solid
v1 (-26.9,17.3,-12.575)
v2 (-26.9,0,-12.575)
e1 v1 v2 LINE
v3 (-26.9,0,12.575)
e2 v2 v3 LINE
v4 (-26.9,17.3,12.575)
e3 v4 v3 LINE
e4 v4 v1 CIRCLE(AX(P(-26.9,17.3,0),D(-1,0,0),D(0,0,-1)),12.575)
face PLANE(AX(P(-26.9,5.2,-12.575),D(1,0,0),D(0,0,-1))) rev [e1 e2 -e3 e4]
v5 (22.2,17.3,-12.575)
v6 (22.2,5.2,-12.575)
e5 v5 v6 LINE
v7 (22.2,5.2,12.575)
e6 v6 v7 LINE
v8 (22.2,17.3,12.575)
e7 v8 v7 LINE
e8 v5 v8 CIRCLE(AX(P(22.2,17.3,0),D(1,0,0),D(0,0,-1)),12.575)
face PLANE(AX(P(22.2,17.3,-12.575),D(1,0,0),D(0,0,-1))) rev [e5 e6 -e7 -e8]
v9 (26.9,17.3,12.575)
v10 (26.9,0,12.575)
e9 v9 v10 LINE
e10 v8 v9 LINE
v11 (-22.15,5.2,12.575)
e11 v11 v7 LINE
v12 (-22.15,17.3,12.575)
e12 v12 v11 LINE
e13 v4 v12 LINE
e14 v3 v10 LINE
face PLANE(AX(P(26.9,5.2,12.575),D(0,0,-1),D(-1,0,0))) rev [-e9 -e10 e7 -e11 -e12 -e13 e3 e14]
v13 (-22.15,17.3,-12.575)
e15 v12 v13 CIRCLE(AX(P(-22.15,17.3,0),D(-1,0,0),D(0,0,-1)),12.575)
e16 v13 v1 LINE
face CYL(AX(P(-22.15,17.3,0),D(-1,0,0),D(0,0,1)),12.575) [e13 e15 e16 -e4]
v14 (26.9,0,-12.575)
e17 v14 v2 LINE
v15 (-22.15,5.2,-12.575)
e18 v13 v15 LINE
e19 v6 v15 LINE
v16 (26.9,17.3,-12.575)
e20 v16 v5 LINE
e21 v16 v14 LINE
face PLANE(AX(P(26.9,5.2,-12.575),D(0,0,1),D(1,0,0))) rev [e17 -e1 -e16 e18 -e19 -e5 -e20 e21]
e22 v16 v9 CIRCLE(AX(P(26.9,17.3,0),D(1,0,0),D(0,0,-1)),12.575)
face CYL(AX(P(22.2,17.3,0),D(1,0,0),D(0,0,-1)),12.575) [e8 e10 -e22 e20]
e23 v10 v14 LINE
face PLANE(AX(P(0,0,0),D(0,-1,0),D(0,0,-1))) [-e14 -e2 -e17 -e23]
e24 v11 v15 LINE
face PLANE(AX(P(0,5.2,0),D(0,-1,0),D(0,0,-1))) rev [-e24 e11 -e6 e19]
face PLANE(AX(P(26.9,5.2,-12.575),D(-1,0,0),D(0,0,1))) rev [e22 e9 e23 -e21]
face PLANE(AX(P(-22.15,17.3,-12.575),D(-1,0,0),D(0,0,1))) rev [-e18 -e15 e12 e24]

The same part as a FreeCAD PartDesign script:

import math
import FreeCAD as App
import Part
import Sketcher

doc = App.newDocument("Part")
body = doc.addObject("PartDesign::Body", "Body")

# Sketch on XZ plane
sketch1 = body.newObject("Sketcher::SketchObject", "Sketch")
sketch1.AttachmentSupport = (doc.getObject("XZ_Plane"), [""])
sketch1.MapMode = "FlatFace"
sketch1.addGeometry([
    Part.LineSegment(App.Vector(-26.9, -12.575, 0), App.Vector(-26.9, 12.575, 0)),
    Part.LineSegment(App.Vector(-26.9, 12.575, 0), App.Vector(26.9, 12.575, 0)),
    Part.LineSegment(App.Vector(26.9, 12.575, 0), App.Vector(26.9, -12.575, 0)),
    Part.LineSegment(App.Vector(26.9, -12.575, 0), App.Vector(-26.9, -12.575, 0)),
], False)
sketch1.addConstraint([
    Sketcher.Constraint("Coincident", 0, 2, 1, 1),
    Sketcher.Constraint("Coincident", 1, 2, 2, 1),
    Sketcher.Constraint("Coincident", 2, 2, 3, 1),
    Sketcher.Constraint("Coincident", 3, 2, 0, 1),
    Sketcher.Constraint("Vertical", 0),
    Sketcher.Constraint("Horizontal", 1),
    Sketcher.Constraint("Vertical", 2),
    Sketcher.Constraint("Horizontal", 3),
    Sketcher.Constraint("Symmetric", 0, 2, 2, 2, -1, 1),
    Sketcher.Constraint("DistanceX", 1, 1, 1, 2, 53.8),
    Sketcher.Constraint("DistanceY", 0, 1, 0, 2, 25.15),
])
pad1 = body.newObject("PartDesign::Pad", "Pad")
pad1.Profile = sketch1
pad1.Length = 5.2
pad1.Reversed = True

# Sketch on XZ plane
sketch2 = body.newObject("Sketcher::SketchObject", "Sketch001")
sketch2.AttachmentSupport = (doc.getObject("XZ_Plane"), [""])
sketch2.MapMode = "FlatFace"
sketch2.AttachmentOffset = App.Placement(App.Vector(0, 0, -5.2), App.Rotation())
sketch2.addGeometry([
    Part.LineSegment(App.Vector(-26.9, -12.575, 0), App.Vector(-26.9, 12.575, 0)),
    Part.LineSegment(App.Vector(-26.9, 12.575, 0), App.Vector(-22.15, 12.575, 0)),
    Part.LineSegment(App.Vector(-22.15, 12.575, 0), App.Vector(-22.15, -12.575, 0)),
    Part.LineSegment(App.Vector(-22.15, -12.575, 0), App.Vector(-26.9, -12.575, 0)),
], False)
sketch2.addConstraint([
    Sketcher.Constraint("Coincident", 0, 2, 1, 1),
    Sketcher.Constraint("Coincident", 1, 2, 2, 1),
    Sketcher.Constraint("Coincident", 2, 2, 3, 1),
    Sketcher.Constraint("Coincident", 3, 2, 0, 1),
    Sketcher.Constraint("Vertical", 0),
    Sketcher.Constraint("Horizontal", 1),
    Sketcher.Constraint("Vertical", 2),
    Sketcher.Constraint("Horizontal", 3),
    Sketcher.Constraint("DistanceX", 1, 1, 1, 2, 4.75),
    Sketcher.Constraint("DistanceY", 0, 1, 0, 2, 25.15),
    Sketcher.Constraint("DistanceX", 0, 2, -1, 1, 26.9),
    Sketcher.Constraint("DistanceY", -1, 1, 0, 2, 12.575),
])
pad2 = body.newObject("PartDesign::Pad", "Pad001")
pad2.Profile = sketch2
pad2.Length = 12.1
pad2.Reversed = True

# Sketch on YZ plane
sketch3 = body.newObject("Sketcher::SketchObject", "Sketch002")
sketch3.AttachmentSupport = (doc.getObject("YZ_Plane"), [""])
sketch3.MapMode = "FlatFace"
sketch3.AttachmentOffset = App.Placement(App.Vector(0, 0, -22.15), App.Rotation())
sketch3.addGeometry([
    Part.LineSegment(App.Vector(17.3, -12.575, 0), App.Vector(17.3, 12.575, 0)),
    Part.ArcOfCircle(Part.Circle(App.Vector(17.3, 0, 0), App.Vector(0, 0, 1), 12.575), math.radians(-90), math.radians(90)),
], False)
sketch3.addConstraint([
    Sketcher.Constraint("Coincident", 0, 1, 1, 1),
    Sketcher.Constraint("Coincident", 1, 2, 0, 2),
    Sketcher.Constraint("Vertical", 0),
    Sketcher.Constraint("PointOnObject", 1, 3, -1),
    Sketcher.Constraint("Vertical", 1, 3, 0, 1),
    Sketcher.Constraint("Radius", 1, 12.575),
    Sketcher.Constraint("DistanceX", -1, 1, 1, 3, 17.3),
])
pad3 = body.newObject("PartDesign::Pad", "Pad002")
pad3.Profile = sketch3
pad3.Length = 4.75
pad3.Reversed = True

# Sketch on XZ plane
sketch4 = body.newObject("Sketcher::SketchObject", "Sketch003")
sketch4.AttachmentSupport = (doc.getObject("XZ_Plane"), [""])
sketch4.MapMode = "FlatFace"
sketch4.AttachmentOffset = App.Placement(App.Vector(0, 0, -5.2), App.Rotation())
sketch4.addGeometry([
    Part.LineSegment(App.Vector(22.2, -12.575, 0), App.Vector(22.2, 12.575, 0)),
    Part.LineSegment(App.Vector(22.2, 12.575, 0), App.Vector(26.9, 12.575, 0)),
    Part.LineSegment(App.Vector(26.9, 12.575, 0), App.Vector(26.9, -12.575, 0)),
    Part.LineSegment(App.Vector(26.9, -12.575, 0), App.Vector(22.2, -12.575, 0)),
], False)
sketch4.addConstraint([
    Sketcher.Constraint("Coincident", 0, 2, 1, 1),
    Sketcher.Constraint("Coincident", 1, 2, 2, 1),
    Sketcher.Constraint("Coincident", 2, 2, 3, 1),
    Sketcher.Constraint("Coincident", 3, 2, 0, 1),
    Sketcher.Constraint("Vertical", 0),
    Sketcher.Constraint("Horizontal", 1),
    Sketcher.Constraint("Vertical", 2),
    Sketcher.Constraint("Horizontal", 3),
    Sketcher.Constraint("DistanceX", 1, 1, 1, 2, 4.7),
    Sketcher.Constraint("DistanceY", 0, 1, 0, 2, 25.15),
    Sketcher.Constraint("DistanceX", -1, 1, 0, 2, 22.2),
    Sketcher.Constraint("DistanceY", -1, 1, 0, 2, 12.575),
])
pad4 = body.newObject("PartDesign::Pad", "Pad003")
pad4.Profile = sketch4
pad4.Length = 12.1
pad4.Reversed = True

# Sketch on YZ plane
sketch5 = body.newObject("Sketcher::SketchObject", "Sketch004")
sketch5.AttachmentSupport = (doc.getObject("YZ_Plane"), [""])
sketch5.MapMode = "FlatFace"
sketch5.AttachmentOffset = App.Placement(App.Vector(0, 0, 22.2), App.Rotation())
sketch5.addGeometry([
    Part.LineSegment(App.Vector(17.3, 12.575, 0), App.Vector(17.3, -12.575, 0)),
    Part.ArcOfCircle(Part.Circle(App.Vector(17.3, 0, 0), App.Vector(0, 0, 1), 12.575), math.radians(-90), math.radians(90)),
], False)
sketch5.addConstraint([
    Sketcher.Constraint("Coincident", 0, 1, 1, 2),
    Sketcher.Constraint("Coincident", 1, 1, 0, 2),
    Sketcher.Constraint("Vertical", 0),
    Sketcher.Constraint("PointOnObject", 1, 3, -1),
    Sketcher.Constraint("Vertical", 1, 3, 0, 1),
    Sketcher.Constraint("Radius", 1, 12.575),
    Sketcher.Constraint("DistanceX", -1, 1, 1, 3, 17.3),
])
pad5 = body.newObject("PartDesign::Pad", "Pad004")
pad5.Profile = sketch5
pad5.Length = 4.7

doc.recompute()
